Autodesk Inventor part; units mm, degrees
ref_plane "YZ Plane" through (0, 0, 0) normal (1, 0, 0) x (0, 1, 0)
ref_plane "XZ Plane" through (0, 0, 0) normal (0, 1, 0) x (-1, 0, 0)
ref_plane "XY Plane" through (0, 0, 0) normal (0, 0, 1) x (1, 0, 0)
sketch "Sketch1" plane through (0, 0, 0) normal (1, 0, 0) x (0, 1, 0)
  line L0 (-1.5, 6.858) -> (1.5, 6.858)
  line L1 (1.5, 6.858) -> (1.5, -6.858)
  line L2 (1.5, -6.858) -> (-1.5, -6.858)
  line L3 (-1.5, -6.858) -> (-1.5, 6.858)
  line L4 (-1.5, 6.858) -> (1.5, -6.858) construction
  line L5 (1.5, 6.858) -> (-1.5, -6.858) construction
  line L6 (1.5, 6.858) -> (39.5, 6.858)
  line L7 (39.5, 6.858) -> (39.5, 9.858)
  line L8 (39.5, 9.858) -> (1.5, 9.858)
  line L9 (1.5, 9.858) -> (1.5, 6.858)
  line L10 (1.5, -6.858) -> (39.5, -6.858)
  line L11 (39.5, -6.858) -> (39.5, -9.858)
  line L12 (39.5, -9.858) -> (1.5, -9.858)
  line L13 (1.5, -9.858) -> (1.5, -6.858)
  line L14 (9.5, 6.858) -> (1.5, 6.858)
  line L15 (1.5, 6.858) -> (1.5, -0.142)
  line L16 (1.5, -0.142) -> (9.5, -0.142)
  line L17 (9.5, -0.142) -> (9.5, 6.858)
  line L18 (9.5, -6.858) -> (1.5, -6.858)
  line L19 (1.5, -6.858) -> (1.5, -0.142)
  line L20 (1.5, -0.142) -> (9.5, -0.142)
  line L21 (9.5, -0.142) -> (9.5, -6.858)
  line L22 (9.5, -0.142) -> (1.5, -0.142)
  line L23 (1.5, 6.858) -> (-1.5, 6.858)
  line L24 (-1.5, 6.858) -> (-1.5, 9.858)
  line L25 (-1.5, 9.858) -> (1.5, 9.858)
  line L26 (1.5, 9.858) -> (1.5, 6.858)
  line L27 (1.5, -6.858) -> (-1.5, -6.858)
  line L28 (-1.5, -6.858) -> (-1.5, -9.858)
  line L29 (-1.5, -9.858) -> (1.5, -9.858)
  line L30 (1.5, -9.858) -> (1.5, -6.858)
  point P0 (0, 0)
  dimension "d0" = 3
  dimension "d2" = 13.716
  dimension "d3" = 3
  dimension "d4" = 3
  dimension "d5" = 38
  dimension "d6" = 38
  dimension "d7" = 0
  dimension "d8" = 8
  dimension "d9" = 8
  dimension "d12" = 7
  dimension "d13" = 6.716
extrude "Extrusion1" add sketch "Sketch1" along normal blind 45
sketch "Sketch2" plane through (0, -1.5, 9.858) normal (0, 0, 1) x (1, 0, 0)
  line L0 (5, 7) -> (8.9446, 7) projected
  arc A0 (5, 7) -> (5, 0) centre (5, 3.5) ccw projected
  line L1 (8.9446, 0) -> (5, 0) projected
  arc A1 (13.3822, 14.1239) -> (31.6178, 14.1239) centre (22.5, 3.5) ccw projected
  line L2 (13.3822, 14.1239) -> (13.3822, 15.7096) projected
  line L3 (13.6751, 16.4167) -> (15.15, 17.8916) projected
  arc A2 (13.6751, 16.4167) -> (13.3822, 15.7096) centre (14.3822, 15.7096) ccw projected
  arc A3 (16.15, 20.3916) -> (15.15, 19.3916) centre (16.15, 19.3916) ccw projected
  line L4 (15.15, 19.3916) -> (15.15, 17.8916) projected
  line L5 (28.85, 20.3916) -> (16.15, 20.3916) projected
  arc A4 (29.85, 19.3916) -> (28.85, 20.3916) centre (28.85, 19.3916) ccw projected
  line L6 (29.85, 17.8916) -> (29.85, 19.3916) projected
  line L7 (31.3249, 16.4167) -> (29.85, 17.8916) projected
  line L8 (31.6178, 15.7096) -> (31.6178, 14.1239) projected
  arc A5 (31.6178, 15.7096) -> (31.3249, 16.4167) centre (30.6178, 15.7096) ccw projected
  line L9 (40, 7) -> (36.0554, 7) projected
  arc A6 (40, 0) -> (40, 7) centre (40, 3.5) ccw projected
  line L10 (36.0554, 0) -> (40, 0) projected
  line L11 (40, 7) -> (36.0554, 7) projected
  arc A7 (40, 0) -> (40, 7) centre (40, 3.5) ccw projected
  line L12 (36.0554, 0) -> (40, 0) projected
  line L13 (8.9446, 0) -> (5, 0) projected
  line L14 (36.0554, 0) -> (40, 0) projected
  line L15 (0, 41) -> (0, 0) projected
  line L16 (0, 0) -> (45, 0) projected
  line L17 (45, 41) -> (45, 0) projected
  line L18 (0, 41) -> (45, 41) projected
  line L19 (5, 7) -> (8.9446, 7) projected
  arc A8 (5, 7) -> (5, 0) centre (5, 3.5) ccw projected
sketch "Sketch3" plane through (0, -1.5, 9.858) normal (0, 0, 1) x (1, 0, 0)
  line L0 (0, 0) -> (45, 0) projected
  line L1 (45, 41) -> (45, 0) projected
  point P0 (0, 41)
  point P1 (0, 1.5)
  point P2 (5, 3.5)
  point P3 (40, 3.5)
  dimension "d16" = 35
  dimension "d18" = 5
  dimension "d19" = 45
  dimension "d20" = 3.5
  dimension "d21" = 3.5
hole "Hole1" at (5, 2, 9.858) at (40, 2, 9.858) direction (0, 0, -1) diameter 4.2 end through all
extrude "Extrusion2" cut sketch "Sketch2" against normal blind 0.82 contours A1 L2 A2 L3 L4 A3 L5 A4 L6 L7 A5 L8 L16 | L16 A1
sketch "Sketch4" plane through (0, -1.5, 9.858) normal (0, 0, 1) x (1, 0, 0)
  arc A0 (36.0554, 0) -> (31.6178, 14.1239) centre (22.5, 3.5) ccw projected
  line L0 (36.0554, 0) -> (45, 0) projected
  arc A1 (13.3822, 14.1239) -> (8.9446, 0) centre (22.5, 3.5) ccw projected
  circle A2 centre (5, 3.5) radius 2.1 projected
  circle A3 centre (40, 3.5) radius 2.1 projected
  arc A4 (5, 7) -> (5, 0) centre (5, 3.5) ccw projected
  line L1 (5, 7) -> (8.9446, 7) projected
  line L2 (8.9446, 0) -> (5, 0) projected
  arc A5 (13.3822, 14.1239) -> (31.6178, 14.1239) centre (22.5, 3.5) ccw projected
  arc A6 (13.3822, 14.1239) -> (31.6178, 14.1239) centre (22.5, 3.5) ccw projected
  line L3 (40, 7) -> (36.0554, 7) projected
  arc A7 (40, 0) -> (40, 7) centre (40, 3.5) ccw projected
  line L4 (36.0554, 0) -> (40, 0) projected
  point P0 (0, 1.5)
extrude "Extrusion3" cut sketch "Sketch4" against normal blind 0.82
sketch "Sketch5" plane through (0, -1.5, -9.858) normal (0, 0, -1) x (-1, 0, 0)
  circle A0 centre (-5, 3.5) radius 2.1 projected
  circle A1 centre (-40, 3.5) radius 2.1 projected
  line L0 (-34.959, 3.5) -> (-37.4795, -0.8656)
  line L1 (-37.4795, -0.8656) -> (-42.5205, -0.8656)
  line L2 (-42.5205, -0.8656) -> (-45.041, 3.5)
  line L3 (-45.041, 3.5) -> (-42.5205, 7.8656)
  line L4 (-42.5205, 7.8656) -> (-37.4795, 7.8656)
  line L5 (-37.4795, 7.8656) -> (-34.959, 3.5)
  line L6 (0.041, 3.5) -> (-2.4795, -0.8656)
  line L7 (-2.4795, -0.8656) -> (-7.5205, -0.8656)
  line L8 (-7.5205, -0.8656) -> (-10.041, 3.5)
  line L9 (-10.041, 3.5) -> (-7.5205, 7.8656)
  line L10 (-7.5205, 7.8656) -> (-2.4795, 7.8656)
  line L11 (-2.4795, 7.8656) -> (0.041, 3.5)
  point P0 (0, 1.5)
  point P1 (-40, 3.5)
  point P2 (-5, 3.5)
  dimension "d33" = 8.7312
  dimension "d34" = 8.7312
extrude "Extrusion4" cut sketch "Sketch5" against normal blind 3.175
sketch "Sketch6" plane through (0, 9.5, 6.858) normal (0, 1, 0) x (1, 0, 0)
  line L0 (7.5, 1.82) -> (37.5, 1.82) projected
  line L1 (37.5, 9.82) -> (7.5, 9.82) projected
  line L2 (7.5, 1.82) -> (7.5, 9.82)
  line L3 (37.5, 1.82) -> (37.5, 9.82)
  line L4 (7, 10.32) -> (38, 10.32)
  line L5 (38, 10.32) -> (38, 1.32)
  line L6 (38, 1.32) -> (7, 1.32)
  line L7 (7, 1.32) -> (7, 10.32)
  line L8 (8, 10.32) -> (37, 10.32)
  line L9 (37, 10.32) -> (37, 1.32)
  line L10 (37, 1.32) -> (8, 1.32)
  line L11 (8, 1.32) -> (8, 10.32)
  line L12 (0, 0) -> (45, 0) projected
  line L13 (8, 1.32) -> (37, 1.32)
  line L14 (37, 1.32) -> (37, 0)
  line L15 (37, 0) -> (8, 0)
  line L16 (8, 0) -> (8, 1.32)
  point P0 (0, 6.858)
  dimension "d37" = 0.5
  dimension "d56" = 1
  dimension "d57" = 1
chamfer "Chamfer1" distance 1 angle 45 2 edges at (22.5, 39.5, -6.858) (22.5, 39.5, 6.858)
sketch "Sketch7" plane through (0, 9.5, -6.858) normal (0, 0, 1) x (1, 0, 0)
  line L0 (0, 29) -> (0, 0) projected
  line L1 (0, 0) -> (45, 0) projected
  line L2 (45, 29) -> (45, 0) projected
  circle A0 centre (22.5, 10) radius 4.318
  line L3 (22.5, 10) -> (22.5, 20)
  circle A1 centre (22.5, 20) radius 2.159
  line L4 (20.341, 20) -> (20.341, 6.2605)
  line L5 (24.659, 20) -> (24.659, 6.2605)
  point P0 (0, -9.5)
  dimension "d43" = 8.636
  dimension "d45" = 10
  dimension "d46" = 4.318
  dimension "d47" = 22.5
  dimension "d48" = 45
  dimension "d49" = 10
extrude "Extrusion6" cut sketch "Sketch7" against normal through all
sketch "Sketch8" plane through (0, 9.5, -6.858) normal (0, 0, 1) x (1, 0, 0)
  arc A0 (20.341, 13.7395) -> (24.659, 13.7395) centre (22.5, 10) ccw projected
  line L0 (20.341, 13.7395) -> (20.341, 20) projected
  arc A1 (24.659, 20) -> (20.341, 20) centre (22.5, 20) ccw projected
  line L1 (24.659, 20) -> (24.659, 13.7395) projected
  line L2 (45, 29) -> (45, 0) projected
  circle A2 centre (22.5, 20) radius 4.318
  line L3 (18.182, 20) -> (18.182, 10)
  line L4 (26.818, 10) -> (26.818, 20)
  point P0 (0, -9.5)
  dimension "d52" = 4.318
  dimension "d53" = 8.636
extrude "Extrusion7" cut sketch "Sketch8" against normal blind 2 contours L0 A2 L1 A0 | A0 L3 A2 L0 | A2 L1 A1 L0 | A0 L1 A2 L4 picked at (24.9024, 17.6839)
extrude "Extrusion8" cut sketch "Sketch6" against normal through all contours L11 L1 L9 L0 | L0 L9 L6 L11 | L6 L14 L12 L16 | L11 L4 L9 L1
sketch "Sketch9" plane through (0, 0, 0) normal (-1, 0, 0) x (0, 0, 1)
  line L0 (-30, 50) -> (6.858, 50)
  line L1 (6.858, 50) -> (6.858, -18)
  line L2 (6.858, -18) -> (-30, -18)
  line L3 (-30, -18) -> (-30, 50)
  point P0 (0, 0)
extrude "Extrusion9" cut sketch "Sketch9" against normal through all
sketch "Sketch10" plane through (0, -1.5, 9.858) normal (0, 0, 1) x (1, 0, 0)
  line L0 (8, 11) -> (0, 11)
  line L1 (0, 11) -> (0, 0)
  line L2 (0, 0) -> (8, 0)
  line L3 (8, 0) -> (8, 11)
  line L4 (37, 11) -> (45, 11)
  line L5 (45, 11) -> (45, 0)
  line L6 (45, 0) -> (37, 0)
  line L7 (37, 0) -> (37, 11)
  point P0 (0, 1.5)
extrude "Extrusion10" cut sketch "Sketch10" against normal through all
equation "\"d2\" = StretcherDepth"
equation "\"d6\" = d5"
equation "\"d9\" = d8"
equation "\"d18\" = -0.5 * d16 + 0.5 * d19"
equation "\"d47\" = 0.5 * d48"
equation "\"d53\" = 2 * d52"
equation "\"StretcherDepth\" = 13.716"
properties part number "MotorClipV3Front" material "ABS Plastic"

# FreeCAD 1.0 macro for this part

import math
import FreeCAD as App
import Part
import Sketcher

V = App.Vector
Q = App.Units.Quantity


def edges_at(feature, points):
    """Names of the edges that pass closest to the given points."""
    edges = feature.Shape.Edges
    near = lambda p: min(range(len(edges)), key=lambda i: edges[i].distToShape(Part.Vertex(*p))[0])
    return sorted({f"Edge{near(p) + 1}" for p in points})

doc = App.newDocument("Part")
body = doc.addObject("PartDesign::Body", "Body")

# Sketch on YZ plane
sketch1 = body.newObject("Sketcher::SketchObject", "Sketch")
sketch1.AttachmentSupport = (doc.getObject("YZ_Plane"), [""])
sketch1.MapMode = "FlatFace"
sketch1.addGeometry(Part.LineSegment(V(-1.5, 9.9, 0), V(-1.5, -9.9, 0)), False)
sketch1.addGeometry(Part.LineSegment(V(-1.5, -9.9, 0), V(39.5, -9.9, 0)), False)
sketch1.addGeometry(Part.LineSegment(V(39.5, -9.9, 0), V(39.5, -6.9, 0)), False)
sketch1.addGeometry(Part.LineSegment(V(39.5, -6.9, 0), V(9.5, -6.9, 0)), False)
sketch1.addGeometry(Part.LineSegment(V(9.5, -6.9, 0), V(9.5, 6.9, 0)), False)
sketch1.addGeometry(Part.LineSegment(V(9.5, 6.9, 0), V(39.5, 6.9, 0)), False)
sketch1.addGeometry(Part.LineSegment(V(39.5, 6.9, 0), V(39.5, 9.9, 0)), False)
sketch1.addGeometry(Part.LineSegment(V(39.5, 9.9, 0), V(-1.5, 9.9, 0)), False)
sketch1.addConstraint(Sketcher.Constraint("Coincident", 0, 2, 1, 1))
sketch1.addConstraint(Sketcher.Constraint("Coincident", 1, 2, 2, 1))
sketch1.addConstraint(Sketcher.Constraint("Coincident", 2, 2, 3, 1))
sketch1.addConstraint(Sketcher.Constraint("Coincident", 3, 2, 4, 1))
sketch1.addConstraint(Sketcher.Constraint("Coincident", 4, 2, 5, 1))
sketch1.addConstraint(Sketcher.Constraint("Coincident", 5, 2, 6, 1))
sketch1.addConstraint(Sketcher.Constraint("Coincident", 6, 2, 7, 1))
sketch1.addConstraint(Sketcher.Constraint("Coincident", 7, 2, 0, 1))
sketch1.addConstraint(Sketcher.Constraint("Vertical", 0))
sketch1.addConstraint(Sketcher.Constraint("Horizontal", 1))
sketch1.addConstraint(Sketcher.Constraint("Vertical", 2))
sketch1.addConstraint(Sketcher.Constraint("Horizontal", 3))
sketch1.addConstraint(Sketcher.Constraint("Vertical", 4))
sketch1.addConstraint(Sketcher.Constraint("Horizontal", 5))
sketch1.addConstraint(Sketcher.Constraint("Vertical", 6))
sketch1.addConstraint(Sketcher.Constraint("Horizontal", 7))
sketch1.addConstraint(Sketcher.Constraint("Symmetric", 2, 2, 5, 2, -1))
sketch1.addConstraint(Sketcher.Constraint("Equal", 2, 6))
sketch1.addConstraint(Sketcher.Constraint("DistanceY", 2, 1, 2, 2, Q("3 mm")))
sketch1.addConstraint(Sketcher.Constraint("DistanceX", 1, 1, 1, 2, Q("41 mm")))
sketch1.addConstraint(Sketcher.Constraint("DistanceX", 3, 2, 3, 1, Q("30 mm")))
sketch1.addConstraint(Sketcher.Constraint("DistanceY", 4, 1, 4, 2, Q("13.716 mm")))
sketch1.addConstraint(Sketcher.Constraint("DistanceX", 0, 2, -1, 1, Q("1.5 mm")))
pad1 = body.newObject("PartDesign::Pad", "Pad")
pad1.Profile = sketch1
pad1.Length = 45

# Sketch on XY plane
sketch2 = body.newObject("Sketcher::SketchObject", "Sketch001")
sketch2.AttachmentSupport = (doc.getObject("XY_Plane"), [""])
sketch2.MapMode = "FlatFace"
sketch2.AttachmentOffset = App.Placement(V(0, 0, 9.858), App.Rotation())
sketch2.addGeometry(Part.Circle(V(5, 2, 0), V(0, 0, 1), 2.1), False)
sketch2.addGeometry(Part.Circle(V(40, 2, 0), V(0, 0, 1), 2.1), False)
sketch2.addConstraint(Sketcher.Constraint("Equal", 0, 1))
sketch2.addConstraint(Sketcher.Constraint("Horizontal", 0, 3, 1, 3))
sketch2.addConstraint(Sketcher.Constraint("Diameter", 0, Q("4.2 mm")))
sketch2.addConstraint(Sketcher.Constraint("DistanceX", -1, 1, 0, 3, Q("5 mm")))
sketch2.addConstraint(Sketcher.Constraint("DistanceY", -1, 1, 0, 3, Q("2 mm")))
sketch2.addConstraint(Sketcher.Constraint("DistanceX", -1, 1, 1, 3, Q("40 mm")))
doc.recompute()
hole = body.newObject("PartDesign::Hole", "Hole")
hole.Profile = sketch2
hole.ThreadType = "None"
hole.Diameter = 4.2
hole.DepthType = "ThroughAll"

# Sketch on XY plane
sketch3 = body.newObject("Sketcher::SketchObject", "Sketch002")
sketch3.AttachmentSupport = (doc.getObject("XY_Plane"), [""])
sketch3.MapMode = "FlatFace"
sketch3.AttachmentOffset = App.Placement(V(0, 0, 9.858), App.Rotation())
sketch3.addGeometry(Part.ArcOfCircle(Part.Circle(V(22.5, 2, 0), V(0, 0, 1), 14), math.radians(131), math.radians(409)), False)
sketch3.addGeometry(Part.LineSegment(V(31.6, 12.6, 0), V(31.6, 14.2, 0)), False)
sketch3.addGeometry(Part.ArcOfCircle(Part.Circle(V(30.6, 14.2, 0), V(0, 0, 1), 1), math.radians(0), math.radians(45)), False)
sketch3.addGeometry(Part.LineSegment(V(31.3, 14.9, 0), V(29.9, 16.4, 0)), False)
sketch3.addGeometry(Part.LineSegment(V(29.9, 16.4, 0), V(29.9, 17.9, 0)), False)
sketch3.addGeometry(Part.ArcOfCircle(Part.Circle(V(28.9, 17.9, 0), V(0, 0, 1), 1), math.radians(0), math.radians(90)), False)
sketch3.addGeometry(Part.LineSegment(V(28.9, 18.9, 0), V(16.1, 18.9, 0)), False)
sketch3.addGeometry(Part.ArcOfCircle(Part.Circle(V(16.1, 17.9, 0), V(0, 0, 1), 1), math.radians(90), math.radians(180)), False)
sketch3.addGeometry(Part.LineSegment(V(15.2, 17.9, 0), V(15.2, 16.4, 0)), False)
sketch3.addGeometry(Part.LineSegment(V(15.2, 16.4, 0), V(13.7, 14.9, 0)), False)
sketch3.addGeometry(Part.ArcOfCircle(Part.Circle(V(14.4, 14.2, 0), V(0, 0, 1), 1), math.radians(135), math.radians(180)), False)
sketch3.addGeometry(Part.LineSegment(V(13.4, 14.2, 0), V(13.4, 12.6, 0)), False)
sketch3.addConstraint(Sketcher.Constraint("Coincident", 0, 2, 1, 1))
sketch3.addConstraint(Sketcher.Constraint("Tangent", 1, 2, 2, 1))
sketch3.addConstraint(Sketcher.Constraint("Tangent", 2, 2, 3, 1))
sketch3.addConstraint(Sketcher.Constraint("Coincident", 3, 2, 4, 1))
sketch3.addConstraint(Sketcher.Constraint("Tangent", 4, 2, 5, 1))
sketch3.addConstraint(Sketcher.Constraint("Tangent", 5, 2, 6, 1))
sketch3.addConstraint(Sketcher.Constraint("Tangent", 6, 2, 7, 1))
sketch3.addConstraint(Sketcher.Constraint("Tangent", 7, 2, 8, 1))
sketch3.addConstraint(Sketcher.Constraint("Coincident", 8, 2, 9, 1))
sketch3.addConstraint(Sketcher.Constraint("Tangent", 9, 2, 10, 1))
sketch3.addConstraint(Sketcher.Constraint("Tangent", 10, 2, 11, 1))
sketch3.addConstraint(Sketcher.Constraint("Coincident", 11, 2, 0, 1))
sketch3.addConstraint(Sketcher.Constraint("Vertical", 1))
sketch3.addConstraint(Sketcher.Constraint("Vertical", 4))
sketch3.addConstraint(Sketcher.Constraint("Horizontal", 6))
sketch3.addConstraint(Sketcher.Constraint("Vertical", 8))
sketch3.addConstraint(Sketcher.Constraint("Vertical", 11))
sketch3.addConstraint(Sketcher.Constraint("Equal", 2, 5))
sketch3.addConstraint(Sketcher.Constraint("Equal", 5, 7))
sketch3.addConstraint(Sketcher.Constraint("Equal", 7, 10))
sketch3.addConstraint(Sketcher.Constraint("Perpendicular", 3, 9))
sketch3.addConstraint(Sketcher.Constraint("Horizontal", 2, 3, 10, 3))
sketch3.addConstraint(Sketcher.Constraint("Horizontal", 3, 2, 8, 2))
sketch3.addConstraint(Sketcher.Constraint("Horizontal", 2, 2, 9, 2))
sketch3.addConstraint(Sketcher.Constraint("Horizontal", 0, 2, 11, 2))
sketch3.addConstraint(Sketcher.Constraint("Radius", 0, Q("14 mm")))
sketch3.addConstraint(Sketcher.Constraint("Radius", 2, Q("1 mm")))
sketch3.addConstraint(Sketcher.Constraint("DistanceX", 6, 2, 6, 1, Q("12.7 mm")))
sketch3.addConstraint(Sketcher.Constraint("DistanceY", 4, 1, 4, 2, Q("1.5 mm")))
sketch3.addConstraint(Sketcher.Constraint("DistanceY", -1, 1, 0, 3, Q("2 mm")))
sketch3.addConstraint(Sketcher.Constraint("DistanceX", -1, 1, 0, 3, Q("22.5 mm")))
sketch3.addConstraint(Sketcher.Constraint("DistanceY", 1, 1, 1, 2, Q("1.5857 mm")))
sketch3.addConstraint(Sketcher.Constraint("DistanceY", -1, 1, 0, 2, Q("12.624 mm")))
pocket1 = body.newObject("PartDesign::Pocket", "Pocket")
pocket1.Profile = sketch3
pocket1.Length = 0.82

# Sketch on XY plane
sketch4 = body.newObject("Sketcher::SketchObject", "Sketch003")
sketch4.AttachmentSupport = (doc.getObject("XY_Plane"), [""])
sketch4.MapMode = "FlatFace"
sketch4.AttachmentOffset = App.Placement(V(0, 0, 9.858), App.Rotation())
sketch4.addGeometry(Part.ArcOfCircle(Part.Circle(V(22.5, 2, 0), V(0, 0, 1), 14), math.radians(-14), math.radians(14)), False)
sketch4.addGeometry(Part.LineSegment(V(36.1, -1.5, 0), V(40, -1.5, 0)), False)
sketch4.addGeometry(Part.ArcOfCircle(Part.Circle(V(40, 2, 0), V(0, 0, 1), 3.5), math.radians(-90), math.radians(90)), False)
sketch4.addGeometry(Part.LineSegment(V(40, 5.5, 0), V(36.1, 5.5, 0)), False)
sketch4.addGeometry(Part.Circle(V(40, 2, 0), V(0, 0, 1), 2.1), False)
sketch4.addGeometry(Part.LineSegment(V(5, -1.5, 0), V(8.9, -1.5, 0)), False)
sketch4.addGeometry(Part.ArcOfCircle(Part.Circle(V(22.5, 2, 0), V(0, 0, 1), 14), math.radians(166), math.radians(194)), False)
sketch4.addGeometry(Part.LineSegment(V(8.9, 5.5, 0), V(5, 5.5, 0)), False)
sketch4.addGeometry(Part.ArcOfCircle(Part.Circle(V(5, 2, 0), V(0, 0, 1), 3.5), math.radians(90), math.radians(270)), False)
sketch4.addGeometry(Part.Circle(V(5, 2, 0), V(0, 0, 1), 2.1), False)
sketch4.addConstraint(Sketcher.Constraint("Coincident", 0, 1, 1, 1))
sketch4.addConstraint(Sketcher.Constraint("Tangent", 1, 2, 2, 1))
sketch4.addConstraint(Sketcher.Constraint("Tangent", 2, 2, 3, 1))
sketch4.addConstraint(Sketcher.Constraint("Coincident", 3, 2, 0, 2))
sketch4.addConstraint(Sketcher.Constraint("Coincident", 5, 2, 6, 2))
sketch4.addConstraint(Sketcher.Constraint("Coincident", 6, 1, 7, 1))
sketch4.addConstraint(Sketcher.Constraint("Tangent", 7, 2, 8, 1))
sketch4.addConstraint(Sketcher.Constraint("Tangent", 8, 2, 5, 1))
sketch4.addConstraint(Sketcher.Constraint("Horizontal", 1))
sketch4.addConstraint(Sketcher.Constraint("Horizontal", 3))
sketch4.addConstraint(Sketcher.Constraint("Horizontal", 5))
sketch4.addConstraint(Sketcher.Constraint("Horizontal", 7))
sketch4.addConstraint(Sketcher.Constraint("Coincident", 4, 3, 2, 3))
sketch4.addConstraint(Sketcher.Constraint("Coincident", 6, 3, 0, 3))
sketch4.addConstraint(Sketcher.Constraint("Coincident", 9, 3, 8, 3))
sketch4.addConstraint(Sketcher.Constraint("Equal", 0, 6))
sketch4.addConstraint(Sketcher.Constraint("Equal", 2, 8))
sketch4.addConstraint(Sketcher.Constraint("Equal", 4, 9))
sketch4.addConstraint(Sketcher.Constraint("Horizontal", 0, 3, 2, 3))
sketch4.addConstraint(Sketcher.Constraint("Horizontal", 6, 3, 8, 3))
sketch4.addConstraint(Sketcher.Constraint("Equal", 3, 5))
sketch4.addConstraint(Sketcher.Constraint("Radius", 0, Q("14 mm")))
sketch4.addConstraint(Sketcher.Constraint("Diameter", 4, Q("4.2 mm")))
sketch4.addConstraint(Sketcher.Constraint("Radius", 2, Q("3.5 mm")))
sketch4.addConstraint(Sketcher.Constraint("DistanceY", -1, 1, 0, 3, Q("2 mm")))
sketch4.addConstraint(Sketcher.Constraint("DistanceX", -1, 1, 2, 3, Q("40 mm")))
sketch4.addConstraint(Sketcher.Constraint("DistanceX", -1, 1, 8, 3, Q("5 mm")))
pocket2 = body.newObject("PartDesign::Pocket", "Pocket001")
pocket2.Profile = sketch4
pocket2.Length = 0.82

# Sketch on XY plane
sketch5 = body.newObject("Sketcher::SketchObject", "Sketch004")
sketch5.AttachmentSupport = (doc.getObject("XY_Plane"), [""])
sketch5.MapMode = "FlatFace"
sketch5.AttachmentOffset = App.Placement(V(0, 0, -9.858), App.Rotation())
sketch5.addGeometry(Part.LineSegment(V(37.5, -2.4, 0), V(35, 2, 0)), False)
sketch5.addGeometry(Part.LineSegment(V(35, 2, 0), V(37.5, 6.4, 0)), False)
sketch5.addGeometry(Part.LineSegment(V(37.5, 6.4, 0), V(42.5, 6.4, 0)), False)
sketch5.addGeometry(Part.LineSegment(V(42.5, 6.4, 0), V(45, 2, 0)), False)
sketch5.addGeometry(Part.LineSegment(V(45, 2, 0), V(42.5, -2.4, 0)), False)
sketch5.addGeometry(Part.LineSegment(V(42.5, -2.4, 0), V(37.5, -2.4, 0)), False)
sketch5.addGeometry(Part.Circle(V(40, 2, 0), V(0, 0, 1), 2.1), False)
sketch5.addGeometry(Part.LineSegment(V(2.5, -2.4, 0), V(0, 2, 0)), False)
sketch5.addGeometry(Part.LineSegment(V(0, 2, 0), V(2.5, 6.4, 0)), False)
sketch5.addGeometry(Part.LineSegment(V(2.5, 6.4, 0), V(7.5, 6.4, 0)), False)
sketch5.addGeometry(Part.LineSegment(V(7.5, 6.4, 0), V(10, 2, 0)), False)
sketch5.addGeometry(Part.LineSegment(V(10, 2, 0), V(7.5, -2.4, 0)), False)
sketch5.addGeometry(Part.LineSegment(V(7.5, -2.4, 0), V(2.5, -2.4, 0)), False)
sketch5.addGeometry(Part.Circle(V(5, 2, 0), V(0, 0, 1), 2.1), False)
sketch5.addConstraint(Sketcher.Constraint("Coincident", 0, 2, 1, 1))
sketch5.addConstraint(Sketcher.Constraint("Coincident", 1, 2, 2, 1))
sketch5.addConstraint(Sketcher.Constraint("Coincident", 2, 2, 3, 1))
sketch5.addConstraint(Sketcher.Constraint("Coincident", 3, 2, 4, 1))
sketch5.addConstraint(Sketcher.Constraint("Coincident", 4, 2, 5, 1))
sketch5.addConstraint(Sketcher.Constraint("Coincident", 5, 2, 0, 1))
sketch5.addConstraint(Sketcher.Constraint("Coincident", 7, 2, 8, 1))
sketch5.addConstraint(Sketcher.Constraint("Coincident", 8, 2, 9, 1))
sketch5.addConstraint(Sketcher.Constraint("Coincident", 9, 2, 10, 1))
sketch5.addConstraint(Sketcher.Constraint("Coincident", 10, 2, 11, 1))
sketch5.addConstraint(Sketcher.Constraint("Coincident", 11, 2, 12, 1))
sketch5.addConstraint(Sketcher.Constraint("Coincident", 12, 2, 7, 1))
sketch5.addConstraint(Sketcher.Constraint("Horizontal", 2))
sketch5.addConstraint(Sketcher.Constraint("Horizontal", 5))
sketch5.addConstraint(Sketcher.Constraint("Horizontal", 9))
sketch5.addConstraint(Sketcher.Constraint("Horizontal", 12))
sketch5.addConstraint(Sketcher.Constraint("Equal", 6, 13))
sketch5.addConstraint(Sketcher.Constraint("Parallel", 0, 3))
sketch5.addConstraint(Sketcher.Constraint("Parallel", 1, 4))
sketch5.addConstraint(Sketcher.Constraint("Parallel", 3, 7))
sketch5.addConstraint(Sketcher.Constraint("Parallel", 4, 8))
sketch5.addConstraint(Sketcher.Constraint("Parallel", 7, 10))
sketch5.addConstraint(Sketcher.Constraint("Parallel", 8, 11))
sketch5.addConstraint(Sketcher.Constraint("Horizontal", 6, 3, 13, 3))
sketch5.addConstraint(Sketcher.Constraint("Horizontal", 13, 3, 0, 2))
sketch5.addConstraint(Sketcher.Constraint("Horizontal", 0, 2, 3, 2))
sketch5.addConstraint(Sketcher.Constraint("Horizontal", 3, 2, 7, 2))
sketch5.addConstraint(Sketcher.Constraint("Horizontal", 2, 2, 8, 2))
sketch5.addConstraint(Sketcher.Constraint("Horizontal", 7, 2, 10, 2))
sketch5.addConstraint(Sketcher.Constraint("Horizontal", 5, 2, 11, 2))
sketch5.addConstraint(Sketcher.Constraint("Vertical", 2, 2, 4, 2))
sketch5.addConstraint(Sketcher.Constraint("Vertical", 1, 2, 5, 2))
sketch5.addConstraint(Sketcher.Constraint("Equal", 5, 9))
sketch5.addConstraint(Sketcher.Constraint("Diameter", 6, Q("4.2 mm")))
sketch5.addConstraint(Sketcher.Constraint("Angle", 0, Q("120.0002 deg")))
sketch5.addConstraint(Sketcher.Constraint("DistanceX", -1, 1, 6, 3, Q("40 mm")))
sketch5.addConstraint(Sketcher.Constraint("DistanceY", -1, 1, 6, 3, Q("2 mm")))
sketch5.addConstraint(Sketcher.Constraint("DistanceX", -1, 1, 13, 3, Q("5 mm")))
sketch5.addConstraint(Sketcher.Constraint("DistanceX", 7, 2, 0, 2, Q("35 mm")))
sketch5.addConstraint(Sketcher.Constraint("DistanceY", 4, 2, 2, 2, Q("8.7312 mm")))
sketch5.addConstraint(Sketcher.Constraint("DistanceX", 2, 1, 2, 2, Q("5.041 mm")))
sketch5.addConstraint(Sketcher.Constraint("DistanceX", -1, 1, 0, 2, Q("34.959 mm")))
pocket3 = body.newObject("PartDesign::Pocket", "Pocket002")
pocket3.Profile = sketch5
pocket3.Length = 3.175
pocket3.Reversed = True
doc.recompute()

chamfer = body.newObject("PartDesign::Chamfer", "Chamfer")
chamfer.Base = (pocket3, edges_at(pocket3, [(22.5, 39.5, -6.858), (22.5, 39.5, 6.858)]))
chamfer.Size = 1

# Sketch on XY plane
sketch6 = body.newObject("Sketcher::SketchObject", "Sketch005")
sketch6.AttachmentSupport = (doc.getObject("XY_Plane"), [""])
sketch6.MapMode = "FlatFace"
sketch6.AttachmentOffset = App.Placement(V(0, 0, -6.858), App.Rotation())
sketch6.addGeometry(Part.LineSegment(V(24.7, 23.2, 0), V(24.7, 29.5, 0)), False)
sketch6.addGeometry(Part.ArcOfCircle(Part.Circle(V(22.5, 29.5, 0), V(0, 0, 1), 2.2), math.radians(0), math.radians(180)), False)
sketch6.addGeometry(Part.LineSegment(V(20.3, 29.5, 0), V(20.3, 23.2, 0)), False)
sketch6.addGeometry(Part.ArcOfCircle(Part.Circle(V(22.5, 19.5, 0), V(0, 0, 1), 4.3), math.radians(120), math.radians(420)), False)
sketch6.addConstraint(Sketcher.Constraint("Tangent", 0, 2, 1, 1))
sketch6.addConstraint(Sketcher.Constraint("Tangent", 1, 2, 2, 1))
sketch6.addConstraint(Sketcher.Constraint("Coincident", 2, 2, 3, 1))
sketch6.addConstraint(Sketcher.Constraint("Coincident", 3, 2, 0, 1))
sketch6.addConstraint(Sketcher.Constraint("Vertical", 0))
sketch6.addConstraint(Sketcher.Constraint("Vertical", 2))
sketch6.addConstraint(Sketcher.Constraint("Horizontal", 2, 2, 3, 2))
sketch6.addConstraint(Sketcher.Constraint("Radius", 1, Q("2.159 mm")))
sketch6.addConstraint(Sketcher.Constraint("Radius", 3, Q("4.318 mm")))
sketch6.addConstraint(Sketcher.Constraint("DistanceY", 3, 3, 1, 3, Q("10 mm")))
sketch6.addConstraint(Sketcher.Constraint("DistanceX", -1, 1, 1, 3, Q("22.5 mm")))
sketch6.addConstraint(Sketcher.Constraint("DistanceY", -1, 1, 1, 3, Q("29.5 mm")))
pocket4 = body.newObject("PartDesign::Pocket", "Pocket003")
pocket4.Profile = sketch6
pocket4.Type = "ThroughAll"

# Sketch on XY plane
sketch7 = body.newObject("Sketcher::SketchObject", "Sketch006")
sketch7.AttachmentSupport = (doc.getObject("XY_Plane"), [""])
sketch7.MapMode = "FlatFace"
sketch7.AttachmentOffset = App.Placement(V(0, 0, -6.858), App.Rotation())
sketch7.addGeometry(Part.ArcOfCircle(Part.Circle(V(22.5, 19.5, 0), V(0, 0, 1), 4.3), math.radians(180), math.radians(360)), False)
sketch7.addGeometry(Part.LineSegment(V(26.8, 19.5, 0), V(26.8, 29.5, 0)), False)
sketch7.addGeometry(Part.ArcOfCircle(Part.Circle(V(22.5, 29.5, 0), V(0, 0, 1), 4.3), math.radians(0), math.radians(180)), False)
sketch7.addGeometry(Part.LineSegment(V(18.2, 29.5, 0), V(18.2, 19.5, 0)), False)
sketch7.addGeometry(Part.ArcOfCircle(Part.Circle(V(22.5, 29.5, 0), V(0, 0, 1), 4.3), math.radians(-120), math.radians(-60)), False)
sketch7.addGeometry(Part.LineSegment(V(20.3, 25.8, 0), V(20.3, 29.5, 0)), False)
sketch7.addGeometry(Part.ArcOfCircle(Part.Circle(V(22.5, 29.5, 0), V(0, 0, 1), 2.2), math.radians(0), math.radians(180)), False)
sketch7.addGeometry(Part.LineSegment(V(24.7, 29.5, 0), V(24.7, 25.8, 0)), False)
sketch7.addConstraint(Sketcher.Constraint("Tangent", 0, 2, 1, 1))
sketch7.addConstraint(Sketcher.Constraint("Tangent", 1, 2, 2, 1))
sketch7.addConstraint(Sketcher.Constraint("Tangent", 2, 2, 3, 1))
sketch7.addConstraint(Sketcher.Constraint("Tangent", 3, 2, 0, 1))
sketch7.addConstraint(Sketcher.Constraint("Coincident", 4, 1, 5, 1))
sketch7.addConstraint(Sketcher.Constraint("Tangent", 5, 2, 6, 2))
sketch7.addConstraint(Sketcher.Constraint("Tangent", 6, 1, 7, 1))
sketch7.addConstraint(Sketcher.Constraint("Coincident", 7, 2, 4, 2))
sketch7.addConstraint(Sketcher.Constraint("Vertical", 1))
sketch7.addConstraint(Sketcher.Constraint("Vertical", 3))
sketch7.addConstraint(Sketcher.Constraint("Vertical", 5))
sketch7.addConstraint(Sketcher.Constraint("Vertical", 7))
sketch7.addConstraint(Sketcher.Constraint("Coincident", 4, 3, 2, 3))
sketch7.addConstraint(Sketcher.Constraint("Coincident", 6, 3, 2, 3))
sketch7.addConstraint(Sketcher.Constraint("Equal", 2, 4))
sketch7.addConstraint(Sketcher.Constraint("Radius", 0, Q("4.318 mm")))
sketch7.addConstraint(Sketcher.Constraint("Radius", 6, Q("2.159 mm")))
sketch7.addConstraint(Sketcher.Constraint("DistanceY", 1, 1, 1, 2, Q("10 mm")))
sketch7.addConstraint(Sketcher.Constraint("DistanceX", -1, 1, 0, 3, Q("22.5 mm")))
sketch7.addConstraint(Sketcher.Constraint("DistanceY", -1, 1, 0, 3, Q("19.5 mm")))
pocket5 = body.newObject("PartDesign::Pocket", "Pocket004")
pocket5.Profile = sketch7
pocket5.Length = 2

# Sketch on XZ plane
sketch8 = body.newObject("Sketcher::SketchObject", "Sketch007")
sketch8.AttachmentSupport = (doc.getObject("XZ_Plane"), [""])
sketch8.MapMode = "FlatFace"
sketch8.AttachmentOffset = App.Placement(V(0, 0, -9.5), App.Rotation())
sketch8.addGeometry(Part.LineSegment(V(8, 7, 0), V(37, 7, 0)), False)
sketch8.addGeometry(Part.LineSegment(V(37, 7, 0), V(37, -3, 0)), False)
sketch8.addGeometry(Part.LineSegment(V(37, -3, 0), V(8, -3, 0)), False)
sketch8.addGeometry(Part.LineSegment(V(8, -3, 0), V(8, 7, 0)), False)
sketch8.addConstraint(Sketcher.Constraint("Coincident", 0, 2, 1, 1))
sketch8.addConstraint(Sketcher.Constraint("Coincident", 1, 2, 2, 1))
sketch8.addConstraint(Sketcher.Constraint("Coincident", 2, 2, 3, 1))
sketch8.addConstraint(Sketcher.Constraint("Coincident", 3, 2, 0, 1))
sketch8.addConstraint(Sketcher.Constraint("Horizontal", 0))
sketch8.addConstraint(Sketcher.Constraint("Vertical", 1))
sketch8.addConstraint(Sketcher.Constraint("Horizontal", 2))
sketch8.addConstraint(Sketcher.Constraint("Vertical", 3))
sketch8.addConstraint(Sketcher.Constraint("DistanceX", 0, 1, 0, 2, Q("29 mm")))
sketch8.addConstraint(Sketcher.Constraint("DistanceX", -1, 1, 0, 2, Q("37 mm")))
sketch8.addConstraint(Sketcher.Constraint("DistanceY", 1, 2, 1, 1, Q("10.32 mm")))
sketch8.addConstraint(Sketcher.Constraint("DistanceY", -1, 1, 0, 2, Q("6.858 mm")))
pocket6 = body.newObject("PartDesign::Pocket", "Pocket005")
pocket6.Profile = sketch8
pocket6.Type = "ThroughAll"
pocket6.Reversed = True

# Sketch on YZ plane
sketch9 = body.newObject("Sketcher::SketchObject", "Sketch008")
sketch9.AttachmentSupport = (doc.getObject("YZ_Plane"), [""])
sketch9.MapMode = "FlatFace"
sketch9.addGeometry(Part.LineSegment(V(50, 7, 0), V(50, -30, 0)), False)
sketch9.addGeometry(Part.LineSegment(V(50, -30, 0), V(-18, -30, 0)), False)
sketch9.addGeometry(Part.LineSegment(V(-18, -30, 0), V(-18, 7, 0)), False)
sketch9.addGeometry(Part.LineSegment(V(-18, 7, 0), V(50, 7, 0)), False)
sketch9.addConstraint(Sketcher.Constraint("Coincident", 0, 2, 1, 1))
sketch9.addConstraint(Sketcher.Constraint("Coincident", 1, 2, 2, 1))
sketch9.addConstraint(Sketcher.Constraint("Coincident", 2, 2, 3, 1))
sketch9.addConstraint(Sketcher.Constraint("Coincident", 3, 2, 0, 1))
sketch9.addConstraint(Sketcher.Constraint("Vertical", 0))
sketch9.addConstraint(Sketcher.Constraint("Horizontal", 1))
sketch9.addConstraint(Sketcher.Constraint("Vertical", 2))
sketch9.addConstraint(Sketcher.Constraint("Horizontal", 3))
sketch9.addConstraint(Sketcher.Constraint("DistanceX", 1, 2, 1, 1, Q("68 mm")))
sketch9.addConstraint(Sketcher.Constraint("DistanceX", -1, 1, 0, 2, Q("50 mm")))
sketch9.addConstraint(Sketcher.Constraint("DistanceY", 0, 2, -1, 1, Q("30 mm")))
sketch9.addConstraint(Sketcher.Constraint("DistanceY", 0, 2, 0, 1, Q("36.858 mm")))
pocket7 = body.newObject("PartDesign::Pocket", "Pocket006")
pocket7.Profile = sketch9
pocket7.Type = "ThroughAll"
pocket7.Reversed = True

# Sketch on XY plane
sketch10 = body.newObject("Sketcher::SketchObject", "Sketch009")
sketch10.AttachmentSupport = (doc.getObject("XY_Plane"), [""])
sketch10.MapMode = "FlatFace"
sketch10.AttachmentOffset = App.Placement(V(0, 0, 9.858), App.Rotation())
sketch10.addGeometry(Part.LineSegment(V(8, -2, 0), V(8, 10, 0)), False)
sketch10.addGeometry(Part.LineSegment(V(8, 10, 0), V(0, 10, 0)), False)
sketch10.addGeometry(Part.LineSegment(V(0, 10, 0), V(0, -2, 0)), False)
sketch10.addGeometry(Part.LineSegment(V(0, -2, 0), V(8, -2, 0)), False)
sketch10.addGeometry(Part.LineSegment(V(45, 10, 0), V(37, 10, 0)), False)
sketch10.addGeometry(Part.LineSegment(V(37, 10, 0), V(37, -2, 0)), False)
sketch10.addGeometry(Part.LineSegment(V(37, -2, 0), V(45, -2, 0)), False)
sketch10.addGeometry(Part.LineSegment(V(45, -2, 0), V(45, 10, 0)), False)
sketch10.addConstraint(Sketcher.Constraint("Coincident", 0, 2, 1, 1))
sketch10.addConstraint(Sketcher.Constraint("Coincident", 1, 2, 2, 1))
sketch10.addConstraint(Sketcher.Constraint("Coincident", 2, 2, 3, 1))
sketch10.addConstraint(Sketcher.Constraint("Coincident", 3, 2, 0, 1))
sketch10.addConstraint(Sketcher.Constraint("Coincident", 4, 2, 5, 1))
sketch10.addConstraint(Sketcher.Constraint("Coincident", 5, 2, 6, 1))
sketch10.addConstraint(Sketcher.Constraint("Coincident", 6, 2, 7, 1))
sketch10.addConstraint(Sketcher.Constraint("Coincident", 7, 2, 4, 1))
sketch10.addConstraint(Sketcher.Constraint("Vertical", 0))
sketch10.addConstraint(Sketcher.Constraint("Horizontal", 1))
sketch10.addConstraint(Sketcher.Constraint("Vertical", 2))
sketch10.addConstraint(Sketcher.Constraint("Horizontal", 3))
sketch10.addConstraint(Sketcher.Constraint("Horizontal", 4))
sketch10.addConstraint(Sketcher.Constraint("Vertical", 5))
sketch10.addConstraint(Sketcher.Constraint("Horizontal", 6))
sketch10.addConstraint(Sketcher.Constraint("Vertical", 7))
sketch10.addConstraint(Sketcher.Constraint("PointOnObject", 1, 2, -2))
sketch10.addConstraint(Sketcher.Constraint("Horizontal", 1, 2, 4, 2))
sketch10.addConstraint(Sketcher.Constraint("Horizontal", 3, 2, 5, 2))
sketch10.addConstraint(Sketcher.Constraint("Equal", 3, 4))
sketch10.addConstraint(Sketcher.Constraint("DistanceX", 1, 2, 1, 1, Q("8 mm")))
sketch10.addConstraint(Sketcher.Constraint("DistanceY", 0, 1, 0, 2, Q("11 mm")))
sketch10.addConstraint(Sketcher.Constraint("DistanceX", -1, 1, 4, 2, Q("37 mm")))
sketch10.addConstraint(Sketcher.Constraint("DistanceY", -1, 1, 0, 2, Q("9.5 mm")))
pocket8 = body.newObject("PartDesign::Pocket", "Pocket007")
pocket8.Profile = sketch10
pocket8.Type = "ThroughAll"

doc.recompute()
